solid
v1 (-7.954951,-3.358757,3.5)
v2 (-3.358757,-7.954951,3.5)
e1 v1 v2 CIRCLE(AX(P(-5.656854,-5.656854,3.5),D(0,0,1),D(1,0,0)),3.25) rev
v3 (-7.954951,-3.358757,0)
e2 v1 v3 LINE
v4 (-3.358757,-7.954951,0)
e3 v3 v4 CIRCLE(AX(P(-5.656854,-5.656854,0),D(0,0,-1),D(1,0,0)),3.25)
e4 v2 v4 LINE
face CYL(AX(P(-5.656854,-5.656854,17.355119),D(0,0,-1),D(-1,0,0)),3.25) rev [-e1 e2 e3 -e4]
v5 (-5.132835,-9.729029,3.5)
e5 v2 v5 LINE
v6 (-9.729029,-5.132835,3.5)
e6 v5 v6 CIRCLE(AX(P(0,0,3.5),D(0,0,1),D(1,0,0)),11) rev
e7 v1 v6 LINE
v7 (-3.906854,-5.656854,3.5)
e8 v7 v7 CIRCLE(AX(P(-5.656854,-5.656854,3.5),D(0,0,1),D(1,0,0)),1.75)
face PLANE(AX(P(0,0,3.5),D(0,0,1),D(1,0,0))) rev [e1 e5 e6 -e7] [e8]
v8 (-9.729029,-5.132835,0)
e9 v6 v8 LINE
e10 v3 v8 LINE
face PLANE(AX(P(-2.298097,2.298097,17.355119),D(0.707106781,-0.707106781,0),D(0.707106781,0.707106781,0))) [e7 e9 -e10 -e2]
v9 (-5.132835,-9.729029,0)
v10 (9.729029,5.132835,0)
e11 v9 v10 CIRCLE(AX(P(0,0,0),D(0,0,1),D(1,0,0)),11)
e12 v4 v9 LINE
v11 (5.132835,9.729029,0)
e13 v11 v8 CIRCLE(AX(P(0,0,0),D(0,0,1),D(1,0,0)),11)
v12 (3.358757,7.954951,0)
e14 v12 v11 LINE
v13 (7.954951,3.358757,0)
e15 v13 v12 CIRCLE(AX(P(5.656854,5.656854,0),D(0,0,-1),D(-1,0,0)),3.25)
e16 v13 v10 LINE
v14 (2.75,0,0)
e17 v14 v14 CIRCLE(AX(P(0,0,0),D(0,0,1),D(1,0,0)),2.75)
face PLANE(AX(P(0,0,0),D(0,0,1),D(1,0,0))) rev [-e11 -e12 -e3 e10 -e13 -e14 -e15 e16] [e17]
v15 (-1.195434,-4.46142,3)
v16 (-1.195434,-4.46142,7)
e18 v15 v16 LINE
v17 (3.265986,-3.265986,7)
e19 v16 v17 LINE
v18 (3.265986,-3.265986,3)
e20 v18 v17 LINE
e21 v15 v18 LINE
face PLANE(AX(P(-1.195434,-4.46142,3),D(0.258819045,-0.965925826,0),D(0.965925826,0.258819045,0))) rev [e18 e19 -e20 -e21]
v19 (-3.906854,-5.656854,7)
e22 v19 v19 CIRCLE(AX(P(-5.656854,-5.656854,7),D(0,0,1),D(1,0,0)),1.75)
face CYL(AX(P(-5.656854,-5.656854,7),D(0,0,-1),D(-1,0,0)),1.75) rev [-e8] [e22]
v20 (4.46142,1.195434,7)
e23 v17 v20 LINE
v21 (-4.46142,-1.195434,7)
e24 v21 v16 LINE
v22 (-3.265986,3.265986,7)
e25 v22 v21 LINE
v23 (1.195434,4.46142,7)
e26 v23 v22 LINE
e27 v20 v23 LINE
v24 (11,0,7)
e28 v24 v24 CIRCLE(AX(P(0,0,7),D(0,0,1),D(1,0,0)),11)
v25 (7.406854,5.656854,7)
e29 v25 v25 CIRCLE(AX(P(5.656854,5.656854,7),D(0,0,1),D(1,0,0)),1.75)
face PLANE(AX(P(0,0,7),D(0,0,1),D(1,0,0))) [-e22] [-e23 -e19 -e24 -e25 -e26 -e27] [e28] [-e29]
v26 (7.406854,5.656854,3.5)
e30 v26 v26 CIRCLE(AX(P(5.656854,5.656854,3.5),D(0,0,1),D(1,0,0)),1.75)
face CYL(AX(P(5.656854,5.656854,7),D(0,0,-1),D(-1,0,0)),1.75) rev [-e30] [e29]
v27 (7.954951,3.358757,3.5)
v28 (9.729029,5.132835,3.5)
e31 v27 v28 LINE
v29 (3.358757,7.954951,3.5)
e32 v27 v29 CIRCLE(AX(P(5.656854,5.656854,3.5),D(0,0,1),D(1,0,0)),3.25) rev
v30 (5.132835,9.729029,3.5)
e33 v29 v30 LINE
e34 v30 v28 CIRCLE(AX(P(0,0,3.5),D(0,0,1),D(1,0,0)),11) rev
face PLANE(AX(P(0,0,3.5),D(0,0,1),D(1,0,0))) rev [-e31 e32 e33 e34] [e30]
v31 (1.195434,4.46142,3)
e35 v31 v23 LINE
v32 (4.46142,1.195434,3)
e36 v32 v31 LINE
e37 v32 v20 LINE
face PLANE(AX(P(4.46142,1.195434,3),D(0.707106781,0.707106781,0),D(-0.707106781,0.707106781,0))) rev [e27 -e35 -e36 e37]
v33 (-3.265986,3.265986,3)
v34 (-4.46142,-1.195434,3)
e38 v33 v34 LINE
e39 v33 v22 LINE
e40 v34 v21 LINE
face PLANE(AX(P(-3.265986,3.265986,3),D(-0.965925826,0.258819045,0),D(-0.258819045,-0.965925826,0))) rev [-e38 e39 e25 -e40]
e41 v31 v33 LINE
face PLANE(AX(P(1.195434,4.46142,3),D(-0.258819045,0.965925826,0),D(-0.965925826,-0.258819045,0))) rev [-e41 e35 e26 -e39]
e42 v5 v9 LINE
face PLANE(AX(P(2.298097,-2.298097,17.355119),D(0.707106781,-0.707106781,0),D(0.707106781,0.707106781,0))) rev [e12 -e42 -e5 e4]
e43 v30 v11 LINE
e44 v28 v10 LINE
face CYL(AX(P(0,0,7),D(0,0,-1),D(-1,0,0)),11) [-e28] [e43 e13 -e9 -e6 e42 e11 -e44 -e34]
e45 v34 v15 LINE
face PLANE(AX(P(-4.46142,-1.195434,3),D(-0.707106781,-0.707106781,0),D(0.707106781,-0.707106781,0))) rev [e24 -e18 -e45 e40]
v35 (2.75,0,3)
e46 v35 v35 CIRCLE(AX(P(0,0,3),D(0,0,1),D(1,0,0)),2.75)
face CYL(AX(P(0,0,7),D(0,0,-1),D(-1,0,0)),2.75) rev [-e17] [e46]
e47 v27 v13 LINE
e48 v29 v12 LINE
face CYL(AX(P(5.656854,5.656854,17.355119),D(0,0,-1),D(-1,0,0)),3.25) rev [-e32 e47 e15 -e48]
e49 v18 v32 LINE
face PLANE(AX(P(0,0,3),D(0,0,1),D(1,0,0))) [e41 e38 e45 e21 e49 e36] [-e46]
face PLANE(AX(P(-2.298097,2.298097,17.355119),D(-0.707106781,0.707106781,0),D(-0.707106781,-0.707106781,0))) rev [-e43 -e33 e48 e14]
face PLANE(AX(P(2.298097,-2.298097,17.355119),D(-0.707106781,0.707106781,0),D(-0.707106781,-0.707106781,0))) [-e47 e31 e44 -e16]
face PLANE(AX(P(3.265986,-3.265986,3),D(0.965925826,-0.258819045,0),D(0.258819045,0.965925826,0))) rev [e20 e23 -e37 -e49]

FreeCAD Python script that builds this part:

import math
import FreeCAD as App
import Part
import Sketcher
from FreeCAD import Vector
Q = App.Units.Quantity

doc = App.newDocument("Part")
body = doc.addObject("PartDesign::Body", "Body")

# Sketch on XY plane
sketch1 = body.newObject("Sketcher::SketchObject", "Sketch")
sketch1.AttachmentSupport = (doc.getObject("XY_Plane"), [""])
sketch1.MapMode = "FlatFace"
sketch1.addGeometry([
    Part.Circle(Vector(0, 0, 0), Vector(0, 0, 1), 11),
    Part.Circle(Vector(-5.656854, -5.656854, 0), Vector(0, 0, 1), 1.75),
    Part.Circle(Vector(0, 0, 0), Vector(0, 0, 1), 2.75),
    Part.Circle(Vector(5.656854, 5.656854, 0), Vector(0, 0, 1), 1.75),
], False)
sketch1.addConstraint([
    Sketcher.Constraint("Coincident", 0, 3, -1, 1),
    Sketcher.Constraint("Coincident", 2, 3, -1, 1),
    Sketcher.Constraint("Equal", 1, 3),
    Sketcher.Constraint("Symmetric", 1, 3, 3, 3, -1, 1),
    Sketcher.Constraint("Diameter", 0, Q("22 mm")),
    Sketcher.Constraint("Diameter", 1, Q("3.5 mm")),
    Sketcher.Constraint("Diameter", 2, Q("5.5 mm")),
    Sketcher.Constraint("DistanceX", 1, 3, 3, 3, Q("11.313708 mm")),
    Sketcher.Constraint("DistanceY", 1, 3, 3, 3, Q("11.313708 mm")),
])
pad1 = body.newObject("PartDesign::Pad", "Pad")
pad1.Profile = sketch1
pad1.Length = 7

# Sketch on XY plane
sketch2 = body.newObject("Sketcher::SketchObject", "Sketch001")
sketch2.AttachmentSupport = (doc.getObject("XY_Plane"), [""])
sketch2.MapMode = "FlatFace"
sketch2.AttachmentOffset = App.Placement(Vector(0, 0, 7), App.Rotation())
sketch2.addGeometry([
    Part.LineSegment(Vector(-1.195434, -4.46142, 0), Vector(3.265986, -3.265986, 0)),  # 0
    Part.LineSegment(Vector(3.265986, -3.265986, 0), Vector(4.46142, 1.195434, 0)),  # 1
    Part.LineSegment(Vector(4.46142, 1.195434, 0), Vector(1.195434, 4.46142, 0)),  # 2
    Part.LineSegment(Vector(1.195434, 4.46142, 0), Vector(-3.265986, 3.265986, 0)),  # 3
    Part.LineSegment(Vector(-3.265986, 3.265986, 0), Vector(-4.46142, -1.195434, 0)),  # 4
    Part.LineSegment(Vector(-4.46142, -1.195434, 0), Vector(-1.195434, -4.46142, 0)),  # 5
], False)
sketch2.addConstraint([
    Sketcher.Constraint("Coincident", 0, 2, 1, 1),
    Sketcher.Constraint("Coincident", 1, 2, 2, 1),
    Sketcher.Constraint("Coincident", 2, 2, 3, 1),
    Sketcher.Constraint("Coincident", 3, 2, 4, 1),
    Sketcher.Constraint("Coincident", 4, 2, 5, 1),
    Sketcher.Constraint("Coincident", 5, 2, 0, 1),
    Sketcher.Constraint("Symmetric", 0, 2, 3, 2, -1, 1),
    Sketcher.Constraint("Symmetric", 1, 2, 4, 2, -1, 1),
    Sketcher.Constraint("Symmetric", 2, 2, 5, 2, -1, 1),
    Sketcher.Constraint("Equal", 0, 1),
    Sketcher.Constraint("Equal", 1, 2),
    Sketcher.Constraint("Angle", 0, Q("15 deg")),
    Sketcher.Constraint("Angle", 1, Q("75 deg")),
    Sketcher.Constraint("Angle", 2, Q("135 deg")),
    Sketcher.Constraint("DistanceX", -1, 1, 1, 2, Q("4.46142 mm")),
])
pocket1 = body.newObject("PartDesign::Pocket", "Pocket")
pocket1.Profile = sketch2
pocket1.Length = 4

# Sketch on XY plane
sketch3 = body.newObject("Sketcher::SketchObject", "Sketch002")
sketch3.AttachmentSupport = (doc.getObject("XY_Plane"), [""])
sketch3.MapMode = "FlatFace"
sketch3.addGeometry([
    Part.ArcOfCircle(Part.Circle(Vector(5.656854, 5.656854, 0), Vector(0, 0, 1), 3.25), math.radians(135), math.radians(315)),  # 0
    Part.LineSegment(Vector(3.358757, 7.954951, 0), Vector(5.132835, 9.729029, 0)),  # 1
    Part.ArcOfCircle(Part.Circle(Vector(0, 0, 0), Vector(0, 0, 1), 11), math.radians(27.815204), math.radians(62.184796)),  # 2
    Part.LineSegment(Vector(9.729029, 5.132835, 0), Vector(7.954951, 3.358757, 0)),  # 3
    Part.Circle(Vector(5.656854, 5.656854, 0), Vector(0, 0, 1), 1.75),  # 4
], False)
sketch3.addConstraint([
    Sketcher.Constraint("Tangent", 0, 1, 1, 1),
    Sketcher.Constraint("Coincident", 1, 2, 2, 2),
    Sketcher.Constraint("Coincident", 2, 1, 3, 1),
    Sketcher.Constraint("Tangent", 3, 2, 0, 2),
    Sketcher.Constraint("Coincident", 2, 3, -1, 1),
    Sketcher.Constraint("Coincident", 4, 3, 0, 3),
    Sketcher.Constraint("Parallel", 1, 3),
    Sketcher.Constraint("Equal", 1, 3),
    Sketcher.Constraint("Radius", 2, Q("11 mm")),
    Sketcher.Constraint("Diameter", 4, Q("3.5 mm")),
    Sketcher.Constraint("Angle", 1, Q("45 deg")),
    Sketcher.Constraint("Radius", 0, Q("3.25 mm")),
    Sketcher.Constraint("DistanceY", -1, 1, 0, 1, Q("7.954951 mm")),
])
pocket2 = body.newObject("PartDesign::Pocket", "Pocket001")
pocket2.Profile = sketch3
pocket2.Length = 3.5
pocket2.Reversed = True
doc.recompute()

polarpattern = body.newObject("PartDesign::PolarPattern", "PolarPattern")
polarpattern.Originals = [pocket2]
polarpattern.Axis = (doc.getObject("Z_Axis"), [""])
polarpattern.Angle = 360
polarpattern.Occurrences = 2
body.Tip = polarpattern

doc.recompute()
